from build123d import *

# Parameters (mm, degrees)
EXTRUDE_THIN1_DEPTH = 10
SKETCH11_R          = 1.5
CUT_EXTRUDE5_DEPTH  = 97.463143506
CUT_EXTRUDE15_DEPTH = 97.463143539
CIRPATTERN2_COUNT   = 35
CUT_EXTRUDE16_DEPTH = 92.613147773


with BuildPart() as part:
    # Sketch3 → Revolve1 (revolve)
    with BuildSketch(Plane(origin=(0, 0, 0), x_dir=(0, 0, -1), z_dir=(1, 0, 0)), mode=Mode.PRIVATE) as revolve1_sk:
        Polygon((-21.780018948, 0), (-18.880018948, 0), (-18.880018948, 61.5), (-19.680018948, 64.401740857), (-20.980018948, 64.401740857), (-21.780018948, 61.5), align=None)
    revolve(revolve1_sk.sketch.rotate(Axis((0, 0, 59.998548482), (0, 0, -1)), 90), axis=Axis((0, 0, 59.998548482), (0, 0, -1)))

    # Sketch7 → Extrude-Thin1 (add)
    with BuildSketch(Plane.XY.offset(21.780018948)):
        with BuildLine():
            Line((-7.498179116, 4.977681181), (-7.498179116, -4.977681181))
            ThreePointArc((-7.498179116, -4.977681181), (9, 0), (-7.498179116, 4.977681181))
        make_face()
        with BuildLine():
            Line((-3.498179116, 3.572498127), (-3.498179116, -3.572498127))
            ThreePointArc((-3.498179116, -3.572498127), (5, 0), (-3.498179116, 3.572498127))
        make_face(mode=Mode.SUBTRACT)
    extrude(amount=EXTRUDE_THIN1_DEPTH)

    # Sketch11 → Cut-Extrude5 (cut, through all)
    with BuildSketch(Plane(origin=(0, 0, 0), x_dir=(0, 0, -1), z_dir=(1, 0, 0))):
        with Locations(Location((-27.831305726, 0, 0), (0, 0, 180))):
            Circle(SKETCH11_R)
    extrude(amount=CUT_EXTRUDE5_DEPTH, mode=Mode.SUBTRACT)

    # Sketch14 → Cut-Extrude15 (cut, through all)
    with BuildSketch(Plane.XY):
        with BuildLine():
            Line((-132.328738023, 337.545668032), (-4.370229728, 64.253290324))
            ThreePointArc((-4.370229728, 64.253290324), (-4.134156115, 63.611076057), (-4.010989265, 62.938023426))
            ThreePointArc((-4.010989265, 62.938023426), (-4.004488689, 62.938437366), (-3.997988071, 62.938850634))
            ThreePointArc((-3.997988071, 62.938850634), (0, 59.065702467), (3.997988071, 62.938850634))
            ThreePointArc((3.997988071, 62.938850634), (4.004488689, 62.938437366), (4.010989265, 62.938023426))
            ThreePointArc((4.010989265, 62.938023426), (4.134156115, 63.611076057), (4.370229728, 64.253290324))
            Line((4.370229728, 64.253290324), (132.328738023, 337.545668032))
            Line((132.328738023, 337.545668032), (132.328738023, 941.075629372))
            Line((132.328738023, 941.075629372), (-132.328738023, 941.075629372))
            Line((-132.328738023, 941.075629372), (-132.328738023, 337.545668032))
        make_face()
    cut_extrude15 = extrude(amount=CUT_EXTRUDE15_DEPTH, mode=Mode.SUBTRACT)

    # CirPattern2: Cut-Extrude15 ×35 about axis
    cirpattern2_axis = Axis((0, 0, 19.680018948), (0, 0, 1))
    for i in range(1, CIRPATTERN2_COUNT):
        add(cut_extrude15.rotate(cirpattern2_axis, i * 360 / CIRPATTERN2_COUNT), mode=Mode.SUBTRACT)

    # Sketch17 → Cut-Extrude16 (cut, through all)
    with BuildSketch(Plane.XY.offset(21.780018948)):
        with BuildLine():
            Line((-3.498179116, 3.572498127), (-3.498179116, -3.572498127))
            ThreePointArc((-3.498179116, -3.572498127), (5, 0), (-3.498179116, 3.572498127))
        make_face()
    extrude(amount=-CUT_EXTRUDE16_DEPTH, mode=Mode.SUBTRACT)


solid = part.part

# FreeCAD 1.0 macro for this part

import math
import FreeCAD as App
import Part
import Sketcher
Q = App.Units.Quantity

doc = App.newDocument("Part")
params = doc.addObject("Spreadsheet::Sheet", "Params")
for row, (alias, value) in enumerate([
    ("sketch1_width", "61.5 mm"),
    ("sketch1_height", "2.9 mm"),
    ("sketch1_height2", "1.3 mm"),
    ("sketch1_length", "3.01 mm"),
    ("revolution_angle", "360 deg"),
    ("sketch2_radius", "9 mm"),
    ("sketch2_radius2", "5 mm"),
    ("pad1_length", "10 mm"),
    ("sketch3_diameter", "3 mm"),
    ("sketch4_radius", "4 mm"),
    ("sketch5_radius", "5 mm"),
], start=1):
    params.set(f"A{row}", alias)
    params.set(f"B{row}", "=" + value)
    params.setAlias(f"B{row}", alias)

body = doc.addObject("PartDesign::Body", "Body")

sketch1 = body.newObject("Sketcher::SketchObject", "Sketch")
sketch1.AttachmentSupport = (doc.getObject("YZ_Plane"), [""])
sketch1.MapMode = "FlatFace"
sketch1.addGeometry([
    Part.LineSegment(App.Vector(0, 21.8, 0), App.Vector(0, 18.9, 0)),
    Part.LineSegment(App.Vector(0, 18.9, 0), App.Vector(61.5, 18.9, 0)),
    Part.LineSegment(App.Vector(61.5, 18.9, 0), App.Vector(64.4, 19.7, 0)),
    Part.LineSegment(App.Vector(64.4, 19.7, 0), App.Vector(64.4, 21, 0)),
    Part.LineSegment(App.Vector(64.4, 21, 0), App.Vector(61.5, 21.8, 0)),
    Part.LineSegment(App.Vector(61.5, 21.8, 0), App.Vector(0, 21.8, 0)),
], False)
sketch1.addConstraint([
    Sketcher.Constraint("Coincident", 0, 2, 1, 1),
    Sketcher.Constraint("Coincident", 1, 2, 2, 1),
    Sketcher.Constraint("Coincident", 2, 2, 3, 1),
    Sketcher.Constraint("Coincident", 3, 2, 4, 1),
    Sketcher.Constraint("Coincident", 4, 2, 5, 1),
    Sketcher.Constraint("Coincident", 5, 2, 0, 1),
    Sketcher.Constraint("Vertical", 0),
    Sketcher.Constraint("Horizontal", 1),
    Sketcher.Constraint("Vertical", 3),
    Sketcher.Constraint("Horizontal", 5),
    Sketcher.Constraint("PointOnObject", 0, 2, -2),
    Sketcher.Constraint("Vertical", 1, 2, 4, 2),
    Sketcher.Constraint("Equal", 2, 4),
    Sketcher.Constraint("DistanceX", 1, 1, 1, 2, Q("61.5 mm")),
    Sketcher.Constraint("DistanceY", 0, 2, 0, 1, Q("2.9 mm")),
    Sketcher.Constraint("DistanceY", 3, 1, 3, 2, Q("1.3 mm")),
    Sketcher.Constraint("Distance", 2, Q("3.01 mm")),
    Sketcher.Constraint("DistanceY", -1, 1, 0, 2, Q("18.880019 mm")),
])
sketch1.setExpression("Constraints[13]", "Params.sketch1_width")
sketch1.setExpression("Constraints[14]", "Params.sketch1_height")
sketch1.setExpression("Constraints[15]", "Params.sketch1_height2")
sketch1.setExpression("Constraints[16]", "Params.sketch1_length")
revolution = body.newObject("PartDesign::Revolution", "Revolution")
revolution.Profile = sketch1
revolution.ReferenceAxis = (sketch1, ["V_Axis"])
revolution.setExpression("Angle", "Params.revolution_angle")

sketch2 = body.newObject("Sketcher::SketchObject", "Sketch001")
sketch2.AttachmentSupport = (doc.getObject("XY_Plane"), [""])
sketch2.MapMode = "FlatFace"
sketch2.AttachmentOffset = App.Placement(App.Vector(0, 0, 21.780019), App.Rotation())
sketch2.addGeometry([
    Part.LineSegment(App.Vector(-7, 5, 0), App.Vector(-7, -5, 0)),
    Part.ArcOfCircle(Part.Circle(App.Vector(0, 0, 0), App.Vector(0, 0, 1), 9), math.radians(-146), math.radians(146)),
    Part.LineSegment(App.Vector(-3, -4, 0), App.Vector(-3, 4, 0)),
    Part.ArcOfCircle(Part.Circle(App.Vector(0, 0, 0), App.Vector(0, 0, 1), 5), math.radians(-134), math.radians(134)),
], False)
sketch2.addConstraint([
    Sketcher.Constraint("Coincident", 0, 1, 1, 2),
    Sketcher.Constraint("Coincident", 1, 1, 0, 2),
    Sketcher.Constraint("Coincident", 2, 1, 3, 1),
    Sketcher.Constraint("Coincident", 3, 2, 2, 2),
    Sketcher.Constraint("Vertical", 0),
    Sketcher.Constraint("Vertical", 2),
    Sketcher.Constraint("Coincident", 1, 3, -1, 1),
    Sketcher.Constraint("Coincident", 3, 3, -1, 1),
    Sketcher.Constraint("Radius", 1, Q("9 mm")),
    Sketcher.Constraint("Radius", 3, Q("5 mm")),
    Sketcher.Constraint("DistanceX", 1, 1, 2, 1, Q("4 mm")),
    Sketcher.Constraint("DistanceY", 2, 1, -1, 1, Q("3.572498 mm")),
])
sketch2.setExpression("Constraints[8]", "Params.sketch2_radius")
sketch2.setExpression("Constraints[9]", "Params.sketch2_radius2")
pad1 = body.newObject("PartDesign::Pad", "Pad")
pad1.Profile = sketch2
pad1.setExpression("Length", "Params.pad1_length")

sketch3 = body.newObject("Sketcher::SketchObject", "Sketch002")
sketch3.AttachmentSupport = (doc.getObject("YZ_Plane"), [""])
sketch3.MapMode = "FlatFace"
sketch3.addGeometry(Part.Circle(App.Vector(0, 27.8, 0), App.Vector(0, 0, 1), 1.5), False)
sketch3.addConstraint([
    Sketcher.Constraint("PointOnObject", 0, 3, -2),
    Sketcher.Constraint("Diameter", 0, Q("3 mm")),
    Sketcher.Constraint("DistanceY", -1, 1, 0, 3, Q("27.831306 mm")),
])
sketch3.setExpression("Constraints[1]", "Params.sketch3_diameter")
pocket1 = body.newObject("PartDesign::Pocket", "Pocket")
pocket1.Profile = sketch3
pocket1.Type = "ThroughAll"
pocket1.Reversed = True

sketch4 = body.newObject("Sketcher::SketchObject", "Sketch003")
sketch4.AttachmentSupport = (doc.getObject("XY_Plane"), [""])
sketch4.MapMode = "FlatFace"
sketch4.addGeometry([
    Part.LineSegment(App.Vector(-132.329, 337.546, 0), App.Vector(-4.37, 64.253, 0)),
    Part.ArcOfCircle(Part.Circle(App.Vector(-7.993, 62.557, 0), App.Vector(0, 0, 1), 4), math.radians(5.46), math.radians(25.09)),
    Part.ArcOfCircle(Part.Circle(App.Vector(-0.003, 0.05, 0), App.Vector(0, 0, 1), 63.015), math.radians(93.63), math.radians(93.65)),
    Part.ArcOfCircle(Part.Circle(App.Vector(0, 63.066, 0), App.Vector(0, 0, 1), 4), math.radians(-178), math.radians(-2)),
    Part.ArcOfCircle(Part.Circle(App.Vector(0.003, 0.05, 0), App.Vector(0, 0, 1), 63.015), math.radians(86.35), math.radians(86.37)),
    Part.ArcOfCircle(Part.Circle(App.Vector(7.993, 62.557, 0), App.Vector(0, 0, 1), 4), math.radians(154.91), math.radians(174.54)),
    Part.LineSegment(App.Vector(4.37, 64.253, 0), App.Vector(132.329, 337.546, 0)),
    Part.LineSegment(App.Vector(132.329, 337.546, 0), App.Vector(132.329, 941.076, 0)),
    Part.LineSegment(App.Vector(132.329, 941.076, 0), App.Vector(-132.329, 941.076, 0)),
    Part.LineSegment(App.Vector(-132.329, 941.076, 0), App.Vector(-132.329, 337.546, 0)),
], False)
sketch4.addConstraint([
    Sketcher.Constraint("Tangent", 0, 2, 1, 2),
    Sketcher.Constraint("Coincident", 1, 1, 2, 2),
    Sketcher.Constraint("Coincident", 2, 1, 3, 1),
    Sketcher.Constraint("Coincident", 3, 2, 4, 2),
    Sketcher.Constraint("Coincident", 4, 1, 5, 2),
    Sketcher.Constraint("Tangent", 5, 1, 6, 1),
    Sketcher.Constraint("Coincident", 6, 2, 7, 1),
    Sketcher.Constraint("Coincident", 7, 2, 8, 1),
    Sketcher.Constraint("Coincident", 8, 2, 9, 1),
    Sketcher.Constraint("Coincident", 9, 2, 0, 1),
    Sketcher.Constraint("Vertical", 7),
    Sketcher.Constraint("Horizontal", 8),
    Sketcher.Constraint("Vertical", 9),
    Sketcher.Constraint("Equal", 1, 3),
    Sketcher.Constraint("Equal", 2, 4),
    Sketcher.Constraint("Equal", 3, 5),
    Sketcher.Constraint("Symmetric", 2, 3, 4, 3, -2),
    Sketcher.Constraint("Symmetric", 1, 3, 5, 3, -2),
    Sketcher.Constraint("Symmetric", 6, 2, 9, 2, -2),
    Sketcher.Constraint("PointOnObject", 3, 3, -2),
    Sketcher.Constraint("Radius", 1, Q("4 mm")),
    Sketcher.Constraint("Radius", 2, Q("63.015223 mm")),
    Sketcher.Constraint("DistanceX", 1, 1, 2, 1, Q("0.013001 mm")),
    Sketcher.Constraint("DistanceY", 7, 1, 7, 2, Q("603.529961 mm")),
    Sketcher.Constraint("DistanceX", 2, 3, -1, 1, Q("0.003202 mm")),
    Sketcher.Constraint("Distance", 0, Q("301.764981 mm")),
    Sketcher.Constraint("DistanceX", 8, 2, 8, 1, Q("264.657476 mm")),
    Sketcher.Constraint("DistanceX", 0, 2, -1, 1, Q("4.37023 mm")),
    Sketcher.Constraint("DistanceY", -1, 1, 0, 2, Q("64.25329 mm")),
    Sketcher.Constraint("DistanceX", 1, 1, -1, 1, Q("4.010989 mm")),
])
sketch4.setExpression("Constraints[20]", "Params.sketch4_radius")
pocket2 = body.newObject("PartDesign::Pocket", "Pocket001")
pocket2.Profile = sketch4
pocket2.Type = "ThroughAll"
pocket2.Reversed = True
doc.recompute()

polarpattern = body.newObject("PartDesign::PolarPattern", "PolarPattern")
polarpattern.Originals = [pocket2]
polarpattern.Axis = (doc.getObject("Z_Axis"), [""])
polarpattern.Angle = 360
polarpattern.Occurrences = 35
body.Tip = polarpattern

sketch5 = body.newObject("Sketcher::SketchObject", "Sketch004")
sketch5.AttachmentSupport = (doc.getObject("XY_Plane"), [""])
sketch5.MapMode = "FlatFace"
sketch5.AttachmentOffset = App.Placement(App.Vector(0, 0, 21.780019), App.Rotation())
sketch5.addGeometry([
    Part.LineSegment(App.Vector(-3, 4, 0), App.Vector(-3, -4, 0)),
    Part.ArcOfCircle(Part.Circle(App.Vector(0, 0, 0), App.Vector(0, 0, 1), 5), math.radians(-134), math.radians(134)),
], False)
sketch5.addConstraint([
    Sketcher.Constraint("Coincident", 0, 1, 1, 2),
    Sketcher.Constraint("Coincident", 1, 1, 0, 2),
    Sketcher.Constraint("Vertical", 0),
    Sketcher.Constraint("Coincident", 1, 3, -1, 1),
    Sketcher.Constraint("Radius", 1, Q("5 mm")),
    Sketcher.Constraint("DistanceY", -1, 1, 0, 1, Q("3.572498 mm")),
])
sketch5.setExpression("Constraints[4]", "Params.sketch5_radius")
pocket3 = body.newObject("PartDesign::Pocket", "Pocket002")
pocket3.Profile = sketch5
pocket3.Type = "ThroughAll"

doc.recompute()
